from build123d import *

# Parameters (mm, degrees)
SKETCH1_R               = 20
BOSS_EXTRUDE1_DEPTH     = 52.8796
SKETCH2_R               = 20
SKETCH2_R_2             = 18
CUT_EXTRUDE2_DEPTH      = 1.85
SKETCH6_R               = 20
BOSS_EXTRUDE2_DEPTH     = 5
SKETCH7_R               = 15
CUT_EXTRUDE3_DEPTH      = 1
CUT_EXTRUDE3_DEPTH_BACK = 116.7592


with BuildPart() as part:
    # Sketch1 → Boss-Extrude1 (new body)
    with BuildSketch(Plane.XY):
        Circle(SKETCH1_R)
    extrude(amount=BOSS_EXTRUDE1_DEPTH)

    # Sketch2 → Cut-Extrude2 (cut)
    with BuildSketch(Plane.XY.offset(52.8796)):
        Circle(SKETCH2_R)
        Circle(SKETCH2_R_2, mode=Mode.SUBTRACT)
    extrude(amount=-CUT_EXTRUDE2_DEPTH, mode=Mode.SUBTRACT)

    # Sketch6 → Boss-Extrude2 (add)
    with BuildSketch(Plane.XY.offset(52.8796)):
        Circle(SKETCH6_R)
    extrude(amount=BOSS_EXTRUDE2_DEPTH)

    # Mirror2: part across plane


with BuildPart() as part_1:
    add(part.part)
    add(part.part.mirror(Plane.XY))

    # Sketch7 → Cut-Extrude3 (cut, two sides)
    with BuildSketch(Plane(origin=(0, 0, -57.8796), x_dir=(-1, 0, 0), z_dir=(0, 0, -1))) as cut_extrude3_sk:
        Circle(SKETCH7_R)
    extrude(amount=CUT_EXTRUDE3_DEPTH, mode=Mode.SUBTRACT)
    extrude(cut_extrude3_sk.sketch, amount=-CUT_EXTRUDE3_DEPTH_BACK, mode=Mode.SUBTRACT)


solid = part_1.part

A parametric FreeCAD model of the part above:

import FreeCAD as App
import Part
import Sketcher
Q = App.Units.Quantity

doc = App.newDocument("Part")
params = doc.addObject("Spreadsheet::Sheet", "Params")
for row, (alias, value) in enumerate([
    ("sketch1_diameter", "40 mm"),
    ("pad1_length", "52.8796 mm"),
    ("sketch2_diameter", "40 mm"),
    ("sketch2_diameter2", "36 mm"),
    ("pocket1_length", "1.85 mm"),
    ("sketch3_diameter", "40 mm"),
    ("pad2_length", "5 mm"),
    ("sketch4_diameter", "30 mm"),
], start=1):
    params.set(f"A{row}", alias)
    params.set(f"B{row}", "=" + value)
    params.setAlias(f"B{row}", alias)

body = doc.addObject("PartDesign::Body", "Body")

# Sketch on XY plane
sketch1 = body.newObject("Sketcher::SketchObject", "Sketch")
sketch1.AttachmentSupport = (doc.getObject("XY_Plane"), [""])
sketch1.MapMode = "FlatFace"
sketch1.addGeometry(Part.Circle(App.Vector(0, 0, 0), App.Vector(0, 0, 1), 20), False)
sketch1.addConstraint(Sketcher.Constraint("Coincident", 0, 3, -1, 1))
sketch1.addConstraint(Sketcher.Constraint("Diameter", 0, Q("40 mm")))
sketch1.setExpression("Constraints[1]", "Params.sketch1_diameter")
pad1 = body.newObject("PartDesign::Pad", "Pad")
pad1.Profile = sketch1
pad1.setExpression("Length", "Params.pad1_length")

# Sketch on XY plane
sketch2 = body.newObject("Sketcher::SketchObject", "Sketch001")
sketch2.AttachmentSupport = (doc.getObject("XY_Plane"), [""])
sketch2.MapMode = "FlatFace"
sketch2.AttachmentOffset = App.Placement(App.Vector(0, 0, 52.8796), App.Rotation())
sketch2.addGeometry(Part.Circle(App.Vector(0, 0, 0), App.Vector(0, 0, 1), 20), False)
sketch2.addGeometry(Part.Circle(App.Vector(0, 0, 0), App.Vector(0, 0, 1), 18), False)
sketch2.addConstraint(Sketcher.Constraint("Coincident", 0, 3, -1, 1))
sketch2.addConstraint(Sketcher.Constraint("Coincident", 1, 3, -1, 1))
sketch2.addConstraint(Sketcher.Constraint("Diameter", 0, Q("40 mm")))
sketch2.addConstraint(Sketcher.Constraint("Diameter", 1, Q("36 mm")))
sketch2.setExpression("Constraints[2]", "Params.sketch2_diameter")
sketch2.setExpression("Constraints[3]", "Params.sketch2_diameter2")
pocket1 = body.newObject("PartDesign::Pocket", "Pocket")
pocket1.Profile = sketch2
pocket1.setExpression("Length", "Params.pocket1_length")

# Sketch on XY plane
sketch3 = body.newObject("Sketcher::SketchObject", "Sketch002")
sketch3.AttachmentSupport = (doc.getObject("XY_Plane"), [""])
sketch3.MapMode = "FlatFace"
sketch3.AttachmentOffset = App.Placement(App.Vector(0, 0, 52.8796), App.Rotation())
sketch3.addGeometry(Part.Circle(App.Vector(0, 0, 0), App.Vector(0, 0, 1), 20), False)
sketch3.addConstraint(Sketcher.Constraint("Coincident", 0, 3, -1, 1))
sketch3.addConstraint(Sketcher.Constraint("Diameter", 0, Q("40 mm")))
sketch3.setExpression("Constraints[1]", "Params.sketch3_diameter")
pad2 = body.newObject("PartDesign::Pad", "Pad001")
pad2.Profile = sketch3
pad2.setExpression("Length", "Params.pad2_length")
body2 = doc.addObject("PartDesign::Body", "Body001")
doc.recompute()

body2.BaseFeature = body
doc.recompute()

mirroring = doc.addObject("Part::Mirroring", "Mirroring")
mirroring.Source = body
mirroring.Base = App.Vector(0, 0, 0)
mirroring.Normal = App.Vector(0, 0, 1)
body3 = doc.addObject("PartDesign::Body", "Body002")
body3.BaseFeature = mirroring
boolean = body2.newObject("PartDesign::Boolean", "Boolean")
boolean.Type = "Fuse"
boolean.addObjects([body3])
doc.recompute()

# Sketch on XY plane
sketch4 = body2.newObject("Sketcher::SketchObject", "Sketch003")
sketch4.AttachmentSupport = (doc.getObject("XY_Plane001"), [""])
sketch4.MapMode = "FlatFace"
sketch4.AttachmentOffset = App.Placement(App.Vector(0, 0, -57.8796), App.Rotation())
sketch4.addGeometry(Part.Circle(App.Vector(0, 0, 0), App.Vector(0, 0, 1), 15), False)
sketch4.addConstraint(Sketcher.Constraint("Coincident", 0, 3, -1, 1))
sketch4.addConstraint(Sketcher.Constraint("Diameter", 0, Q("30 mm")))
sketch4.setExpression("Constraints[1]", "Params.sketch4_diameter")
pocket2 = body2.newObject("PartDesign::Pocket", "Pocket001")
pocket2.Profile = sketch4
pocket2.Type = "ThroughAll"
pocket2.Midplane = True
mirroring.Visibility = False

doc.recompute()
